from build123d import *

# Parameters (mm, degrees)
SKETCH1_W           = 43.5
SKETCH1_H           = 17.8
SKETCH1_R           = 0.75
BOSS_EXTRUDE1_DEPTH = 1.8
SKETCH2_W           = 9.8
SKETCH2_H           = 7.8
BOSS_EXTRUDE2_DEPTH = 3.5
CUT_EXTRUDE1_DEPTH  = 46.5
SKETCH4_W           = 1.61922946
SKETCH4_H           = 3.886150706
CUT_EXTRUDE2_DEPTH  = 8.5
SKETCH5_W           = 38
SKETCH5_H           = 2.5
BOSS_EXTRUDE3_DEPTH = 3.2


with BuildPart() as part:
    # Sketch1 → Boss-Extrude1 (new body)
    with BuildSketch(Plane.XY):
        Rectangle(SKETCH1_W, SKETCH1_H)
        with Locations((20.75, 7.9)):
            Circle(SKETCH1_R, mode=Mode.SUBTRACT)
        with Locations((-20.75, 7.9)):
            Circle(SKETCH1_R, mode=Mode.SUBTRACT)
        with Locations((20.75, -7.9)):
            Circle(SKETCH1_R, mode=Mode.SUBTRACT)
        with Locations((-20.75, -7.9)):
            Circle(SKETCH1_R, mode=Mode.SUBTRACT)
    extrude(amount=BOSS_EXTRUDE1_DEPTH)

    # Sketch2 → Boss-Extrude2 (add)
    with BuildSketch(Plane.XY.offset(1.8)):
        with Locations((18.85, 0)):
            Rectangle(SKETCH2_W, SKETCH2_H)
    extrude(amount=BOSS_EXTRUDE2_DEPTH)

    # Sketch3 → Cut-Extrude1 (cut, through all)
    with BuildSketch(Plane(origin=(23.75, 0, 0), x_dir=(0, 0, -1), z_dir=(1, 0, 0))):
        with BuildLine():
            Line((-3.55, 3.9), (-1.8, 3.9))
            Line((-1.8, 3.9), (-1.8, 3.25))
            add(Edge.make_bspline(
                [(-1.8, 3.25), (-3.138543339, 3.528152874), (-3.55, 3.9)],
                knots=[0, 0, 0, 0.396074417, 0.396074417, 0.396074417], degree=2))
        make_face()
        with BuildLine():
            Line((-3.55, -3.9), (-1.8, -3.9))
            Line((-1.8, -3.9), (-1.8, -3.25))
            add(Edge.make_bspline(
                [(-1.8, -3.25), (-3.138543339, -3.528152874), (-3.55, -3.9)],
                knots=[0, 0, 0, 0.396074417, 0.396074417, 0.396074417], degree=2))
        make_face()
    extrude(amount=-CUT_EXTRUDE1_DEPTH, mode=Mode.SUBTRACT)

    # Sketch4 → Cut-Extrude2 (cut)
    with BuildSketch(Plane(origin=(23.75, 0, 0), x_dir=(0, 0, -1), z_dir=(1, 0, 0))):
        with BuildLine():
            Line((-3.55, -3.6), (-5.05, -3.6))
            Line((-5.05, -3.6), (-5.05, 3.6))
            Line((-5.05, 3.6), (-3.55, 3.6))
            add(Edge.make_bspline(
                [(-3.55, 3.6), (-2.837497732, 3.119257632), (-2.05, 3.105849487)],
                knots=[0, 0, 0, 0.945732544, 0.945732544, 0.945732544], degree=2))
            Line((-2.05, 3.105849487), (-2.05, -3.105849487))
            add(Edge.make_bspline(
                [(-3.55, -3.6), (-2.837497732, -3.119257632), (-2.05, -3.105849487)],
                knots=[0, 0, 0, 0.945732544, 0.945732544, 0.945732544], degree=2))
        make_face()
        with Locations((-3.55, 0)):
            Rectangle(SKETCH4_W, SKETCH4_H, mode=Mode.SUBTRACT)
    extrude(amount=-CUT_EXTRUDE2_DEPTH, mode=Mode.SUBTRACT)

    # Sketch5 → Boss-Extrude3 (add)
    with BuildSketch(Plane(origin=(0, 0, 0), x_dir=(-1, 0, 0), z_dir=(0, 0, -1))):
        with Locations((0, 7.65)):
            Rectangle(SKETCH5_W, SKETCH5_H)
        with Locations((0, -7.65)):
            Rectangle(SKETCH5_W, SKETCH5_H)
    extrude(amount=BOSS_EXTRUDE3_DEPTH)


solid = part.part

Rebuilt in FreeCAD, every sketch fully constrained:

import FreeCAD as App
import Part
import Sketcher

V = App.Vector


def add_polygon(sketch, points):
    """Adds a closed chain of lines whose ends are joined by coincident constraints."""
    first, n = sketch.GeometryCount, len(points)
    for a, b in zip(points, points[1:] + points[:1]):
        sketch.addGeometry(Part.LineSegment(App.Vector(*a, 0), App.Vector(*b, 0)), False)
    for i in range(n):
        sketch.addConstraint(Sketcher.Constraint("Coincident", first + i, 2, first + (i + 1) % n, 1))

doc = App.newDocument("Part")
body = doc.addObject("PartDesign::Body", "Body")

sketch1 = doc.addObject("Sketcher::SketchObject", "Sketch")
body.addObject(sketch1)
sketch1.AttachmentSupport = (doc.XY_Plane, [""])
sketch1.MapMode = "FlatFace"
add_polygon(sketch1, [(-21.8, 8.9), (-21.8, -8.9), (21.8, -8.9), (21.8, 8.9)])
sketch1.addGeometry(Part.Circle(V(-20.8, -7.9, 0), V(0, 0, 1), 0.8), False)
sketch1.addGeometry(Part.Circle(V(20.8, -7.9, 0), V(0, 0, 1), 0.8), False)
sketch1.addGeometry(Part.Circle(V(-20.8, 7.9, 0), V(0, 0, 1), 0.8), False)
sketch1.addGeometry(Part.Circle(V(20.8, 7.9, 0), V(0, 0, 1), 0.8), False)
sketch1.addConstraint([
    Sketcher.Constraint("Vertical", 0),
    Sketcher.Constraint("Horizontal", 1),
    Sketcher.Constraint("Vertical", 2),
    Sketcher.Constraint("Horizontal", 3),
    Sketcher.Constraint("Equal", 4, 5),
    Sketcher.Constraint("Equal", 5, 6),
    Sketcher.Constraint("Equal", 6, 7),
    Sketcher.Constraint("Symmetric", 5, 3, 6, 3, -1, 1),
    Sketcher.Constraint("Symmetric", 4, 3, 7, 3, -1, 1),
    Sketcher.Constraint("Symmetric", 0, 2, 2, 2, -1, 1),
    Sketcher.Constraint("Symmetric", 4, 3, 5, 3, -2),
    Sketcher.Constraint("Diameter", 4, 1.5),
    Sketcher.Constraint("DistanceX", 1, 1, 1, 2, 43.5),
    Sketcher.Constraint("DistanceY", 0, 2, 0, 1, 17.8),
    Sketcher.Constraint("DistanceX", 0, 2, 4, 3, 1.0),
    Sketcher.Constraint("DistanceY", 0, 2, 4, 3, 1.0),
])
pad1 = doc.addObject("PartDesign::Pad", "Pad")
body.addObject(pad1)
pad1.Profile = sketch1
pad1.Length = 1.8

sketch2 = doc.addObject("Sketcher::SketchObject", "Sketch001")
body.addObject(sketch2)
sketch2.AttachmentSupport = (doc.XY_Plane, [""])
sketch2.MapMode = "FlatFace"
sketch2.AttachmentOffset = App.Placement(V(0, 0, 1.8), App.Rotation())
add_polygon(sketch2, [(14, 4), (14, -4), (24, -4), (24, 4)])
sketch2.addConstraint([
    Sketcher.Constraint("Vertical", 0),
    Sketcher.Constraint("Horizontal", 1),
    Sketcher.Constraint("Vertical", 2),
    Sketcher.Constraint("Horizontal", 3),
    Sketcher.Constraint("DistanceX", 1, 1, 1, 2, 9.8),
    Sketcher.Constraint("DistanceY", 0, 2, 0, 1, 7.8),
    Sketcher.Constraint("DistanceY", 0, 2, -1, 1, 3.9),
    Sketcher.Constraint("DistanceX", -1, 1, 0, 2, 13.95),
])
pad2 = doc.addObject("PartDesign::Pad", "Pad001")
body.addObject(pad2)
pad2.Profile = sketch2
pad2.Length = 3.5

sketch3 = doc.addObject("Sketcher::SketchObject", "Sketch002")
body.addObject(sketch3)
sketch3.AttachmentSupport = (doc.YZ_Plane, [""])
sketch3.MapMode = "FlatFace"
sketch3.AttachmentOffset = App.Placement(V(0, 0, 23.75), App.Rotation())
sketch3.addGeometry([
    Part.LineSegment(V(3.9, 1.8, 0), V(3.9, 3.55, 0)),
    Part.BSplineCurve([V(3.25, 1.8, 0), V(3.528153, 3.138543, 0), V(3.9, 3.55, 0)], [3, 3], [0, 0.396074417], False, 2, [1, 1, 1], False),
    Part.LineSegment(V(3.25, 1.8, 0), V(3.9, 1.8, 0)),
    Part.LineSegment(V(-3.9, 3.55, 0), V(-3.9, 1.8, 0)),
    Part.LineSegment(V(-3.9, 1.8, 0), V(-3.25, 1.8, 0)),
    Part.BSplineCurve([V(-3.25, 1.8, 0), V(-3.528153, 3.138543, 0), V(-3.9, 3.55, 0)], [3, 3], [0, 0.396074417], False, 2, [1, 1, 1], False),
], False)
sketch3.addConstraint([
    Sketcher.Constraint("Block", 1),
    Sketcher.Constraint("Block", 5),
    Sketcher.Constraint("Coincident", 0, 2, 1, 2),
    Sketcher.Constraint("Coincident", 1, 1, 2, 1),
    Sketcher.Constraint("Coincident", 2, 2, 0, 1),
    Sketcher.Constraint("Coincident", 3, 2, 4, 1),
    Sketcher.Constraint("Coincident", 4, 2, 5, 1),
    Sketcher.Constraint("Coincident", 5, 2, 3, 1),
    Sketcher.Constraint("Vertical", 0),
    Sketcher.Constraint("Horizontal", 2),
    Sketcher.Constraint("Vertical", 3),
    Sketcher.Constraint("Horizontal", 4),
])
pocket1 = doc.addObject("PartDesign::Pocket", "Pocket")
body.addObject(pocket1)
pocket1.Profile = sketch3
pocket1.Type = "ThroughAll"

sketch4 = doc.addObject("Sketcher::SketchObject", "Sketch003")
body.addObject(sketch4)
sketch4.AttachmentSupport = (doc.YZ_Plane, [""])
sketch4.MapMode = "FlatFace"
sketch4.AttachmentOffset = App.Placement(V(0, 0, 23.75), App.Rotation())
sketch4.addGeometry(Part.LineSegment(V(-3.6, 5.05, 0), V(-3.6, 3.55, 0)), False)
sketch4.addGeometry(Part.BSplineCurve([V(-3.6, 3.55, 0), V(-3.119258, 2.837498, 0), V(-3.105849, 2.05, 0)], [3, 3], [0, 0.945732544], False, 2, [1, 1, 1], False), False)
sketch4.addGeometry(Part.LineSegment(V(-3.105849, 2.05, 0), V(3.105849, 2.05, 0)), False)
sketch4.addGeometry(Part.BSplineCurve([V(3.6, 3.55, 0), V(3.119258, 2.837498, 0), V(3.105849, 2.05, 0)], [3, 3], [0, 0.945732544], False, 2, [1, 1, 1], False), False)
sketch4.addGeometry(Part.LineSegment(V(3.6, 3.55, 0), V(3.6, 5.05, 0)), False)
sketch4.addGeometry(Part.LineSegment(V(3.6, 5.05, 0), V(-3.6, 5.05, 0)), False)
add_polygon(sketch4, [(-1.943075, 4.359615), (1.943075, 4.359615), (1.943075, 2.740385), (-1.943075, 2.740385)])
sketch4.addConstraint([
    Sketcher.Constraint("Block", 1),
    Sketcher.Constraint("Block", 3),
    Sketcher.Constraint("Coincident", 0, 2, 1, 1),
    Sketcher.Constraint("Coincident", 1, 2, 2, 1),
    Sketcher.Constraint("Coincident", 2, 2, 3, 2),
    Sketcher.Constraint("Coincident", 3, 1, 4, 1),
    Sketcher.Constraint("Coincident", 4, 2, 5, 1),
    Sketcher.Constraint("Coincident", 5, 2, 0, 1),
    Sketcher.Constraint("Vertical", 0),
    Sketcher.Constraint("Vertical", 4),
    Sketcher.Constraint("Horizontal", 5),
    Sketcher.Constraint("Horizontal", 6),
    Sketcher.Constraint("Vertical", 7),
    Sketcher.Constraint("Horizontal", 8),
    Sketcher.Constraint("Vertical", 9),
    Sketcher.Constraint("DistanceY", 0, 2, 0, 1, 1.5),
    Sketcher.Constraint("DistanceX", 6, 1, 6, 2, 3.886151),
    Sketcher.Constraint("DistanceY", 7, 2, 7, 1, 1.619229),
    Sketcher.Constraint("DistanceX", -1, 1, 6, 2, 1.943075),
    Sketcher.Constraint("DistanceY", -1, 1, 6, 2, 4.359615),
])
pocket2 = doc.addObject("PartDesign::Pocket", "Pocket001")
body.addObject(pocket2)
pocket2.Profile = sketch4
pocket2.Length = 8.5

sketch5 = doc.addObject("Sketcher::SketchObject", "Sketch004")
body.addObject(sketch5)
sketch5.AttachmentSupport = (doc.XY_Plane, [""])
sketch5.MapMode = "FlatFace"
add_polygon(sketch5, [(19, 8.9), (19, 6.4), (-19, 6.4), (-19, 8.9)])
add_polygon(sketch5, [(19, -6.4), (19, -8.9), (-19, -8.9), (-19, -6.4)])
sketch5.addConstraint([
    Sketcher.Constraint("Vertical", 0),
    Sketcher.Constraint("Horizontal", 1),
    Sketcher.Constraint("Vertical", 2),
    Sketcher.Constraint("Horizontal", 3),
    Sketcher.Constraint("Vertical", 4),
    Sketcher.Constraint("Horizontal", 5),
    Sketcher.Constraint("Vertical", 6),
    Sketcher.Constraint("Horizontal", 7),
    Sketcher.Constraint("Symmetric", 2, 2, 4, 2, -1, 1),
    Sketcher.Constraint("Symmetric", 0, 2, 6, 2, -1, 1),
    Sketcher.Constraint("Vertical", 3, 2, 4, 2),
    Sketcher.Constraint("DistanceX", 1, 2, 1, 1, 38.0),
    Sketcher.Constraint("DistanceY", 0, 2, 0, 1, 2.5),
    Sketcher.Constraint("DistanceY", -1, 1, 0, 2, 6.4),
])
pad3 = doc.addObject("PartDesign::Pad", "Pad002")
body.addObject(pad3)
pad3.Profile = sketch5
pad3.Length = 3.2
pad3.Reversed = True

doc.recompute()
